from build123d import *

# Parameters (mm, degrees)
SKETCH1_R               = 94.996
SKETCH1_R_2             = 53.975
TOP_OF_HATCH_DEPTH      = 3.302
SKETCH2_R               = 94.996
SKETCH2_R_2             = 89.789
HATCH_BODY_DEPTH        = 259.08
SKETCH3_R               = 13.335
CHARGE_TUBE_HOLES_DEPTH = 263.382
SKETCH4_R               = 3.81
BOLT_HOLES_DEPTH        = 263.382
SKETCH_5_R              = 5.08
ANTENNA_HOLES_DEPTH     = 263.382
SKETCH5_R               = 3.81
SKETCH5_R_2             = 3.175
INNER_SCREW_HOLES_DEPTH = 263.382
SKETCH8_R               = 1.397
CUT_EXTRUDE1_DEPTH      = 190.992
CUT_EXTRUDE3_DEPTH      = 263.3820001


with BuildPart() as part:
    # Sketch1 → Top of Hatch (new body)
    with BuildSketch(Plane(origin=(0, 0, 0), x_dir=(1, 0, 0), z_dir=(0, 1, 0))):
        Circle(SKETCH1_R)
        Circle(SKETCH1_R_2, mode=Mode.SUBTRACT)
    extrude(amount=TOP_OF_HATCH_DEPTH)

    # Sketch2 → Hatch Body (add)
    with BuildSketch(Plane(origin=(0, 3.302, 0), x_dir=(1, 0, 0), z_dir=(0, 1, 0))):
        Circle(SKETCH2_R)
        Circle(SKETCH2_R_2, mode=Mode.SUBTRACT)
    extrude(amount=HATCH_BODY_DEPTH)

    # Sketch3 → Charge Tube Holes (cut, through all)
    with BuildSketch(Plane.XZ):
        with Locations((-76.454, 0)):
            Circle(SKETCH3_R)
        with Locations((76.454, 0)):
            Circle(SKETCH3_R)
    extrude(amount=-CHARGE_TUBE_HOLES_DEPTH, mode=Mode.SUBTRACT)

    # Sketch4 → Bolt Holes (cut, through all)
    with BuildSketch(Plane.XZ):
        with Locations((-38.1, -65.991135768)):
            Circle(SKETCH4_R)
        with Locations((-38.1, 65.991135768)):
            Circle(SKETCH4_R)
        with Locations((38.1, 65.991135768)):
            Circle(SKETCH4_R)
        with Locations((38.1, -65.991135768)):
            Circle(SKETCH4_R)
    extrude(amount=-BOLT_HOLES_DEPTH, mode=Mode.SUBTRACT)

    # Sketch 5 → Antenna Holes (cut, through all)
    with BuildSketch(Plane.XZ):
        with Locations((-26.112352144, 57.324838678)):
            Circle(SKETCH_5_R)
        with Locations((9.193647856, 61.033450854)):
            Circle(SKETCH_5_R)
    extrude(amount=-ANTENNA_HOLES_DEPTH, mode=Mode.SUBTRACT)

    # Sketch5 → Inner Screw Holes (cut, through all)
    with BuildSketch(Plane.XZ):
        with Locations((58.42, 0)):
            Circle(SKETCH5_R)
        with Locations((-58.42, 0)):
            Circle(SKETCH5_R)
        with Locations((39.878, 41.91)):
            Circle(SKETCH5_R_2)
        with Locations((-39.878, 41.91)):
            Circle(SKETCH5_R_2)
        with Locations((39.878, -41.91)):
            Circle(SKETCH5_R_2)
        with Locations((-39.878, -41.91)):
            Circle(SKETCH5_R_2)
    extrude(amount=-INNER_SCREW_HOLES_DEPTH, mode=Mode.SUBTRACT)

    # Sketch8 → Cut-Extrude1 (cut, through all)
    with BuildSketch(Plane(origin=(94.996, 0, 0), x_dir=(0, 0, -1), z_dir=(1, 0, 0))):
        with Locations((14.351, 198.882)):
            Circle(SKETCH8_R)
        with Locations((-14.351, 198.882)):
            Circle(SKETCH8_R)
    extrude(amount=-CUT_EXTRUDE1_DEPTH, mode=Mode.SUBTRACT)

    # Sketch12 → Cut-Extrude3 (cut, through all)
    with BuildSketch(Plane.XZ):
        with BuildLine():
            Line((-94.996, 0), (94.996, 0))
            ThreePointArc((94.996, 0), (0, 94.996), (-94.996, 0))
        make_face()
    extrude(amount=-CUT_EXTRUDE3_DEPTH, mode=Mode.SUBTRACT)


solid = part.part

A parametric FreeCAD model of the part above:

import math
import FreeCAD as App
import Part
import Sketcher
from FreeCAD import Vector
Q = App.Units.Quantity

doc = App.newDocument("Part")
params = doc.addObject("Spreadsheet::Sheet", "Params")
for row, (alias, value) in enumerate([
    ("sketch1_diameter", "7.48 in"),
    ("sketch1_diameter2", "4.25 in"),
    ("pad1_length", "0.13 in"),
    ("sketch2_diameter", "7.48 in"),
    ("sketch2_diameter2", "7.07 in"),
    ("pad2_length", "10.2 in"),
    ("sketch3_diameter", "1.05 in"),
    ("sketch4_diameter", "0.3 in"),
    ("sketch5_diameter", "0.4 in"),
    ("sketch6_diameter", "0.3 in"),
    ("sketch6_diameter2", "0.25 in"),
    ("sketch7_diameter", "0.11 in"),
    ("sketch8_radius", "3.74 in"),
], start=1):
    params.set(f"A{row}", alias)
    params.set(f"B{row}", "=" + value)
    params.setAlias(f"B{row}", alias)

body = doc.addObject("PartDesign::Body", "Body")

# Sketch on XZ plane
sketch1 = body.newObject("Sketcher::SketchObject", "Sketch")
sketch1.AttachmentSupport = (doc.getObject("XZ_Plane"), [""])
sketch1.MapMode = "FlatFace"
sketch1.addGeometry(Part.Circle(Vector(0, 0, 0), Vector(0, 0, 1), 95), False)
sketch1.addGeometry(Part.Circle(Vector(0, 0, 0), Vector(0, 0, 1), 54), False)
sketch1.addConstraint(Sketcher.Constraint("Coincident", 0, 3, -1, 1))
sketch1.addConstraint(Sketcher.Constraint("Coincident", 1, 3, -1, 1))
sketch1.addConstraint(Sketcher.Constraint("Diameter", 0, Q("7.48 in")))
sketch1.addConstraint(Sketcher.Constraint("Diameter", 1, Q("4.25 in")))
sketch1.setExpression("Constraints[2]", "Params.sketch1_diameter")
sketch1.setExpression("Constraints[3]", "Params.sketch1_diameter2")
pad1 = body.newObject("PartDesign::Pad", "Pad")
pad1.Profile = sketch1
pad1.setExpression("Length", "Params.pad1_length")
pad1.Reversed = True

# Sketch on XZ plane
sketch2 = body.newObject("Sketcher::SketchObject", "Sketch001")
sketch2.AttachmentSupport = (doc.getObject("XZ_Plane"), [""])
sketch2.MapMode = "FlatFace"
sketch2.AttachmentOffset = App.Placement(Vector(0, 0, -0.13 * 25.4), App.Rotation())
sketch2.addGeometry(Part.Circle(Vector(0, 0, 0), Vector(0, 0, 1), 95), False)
sketch2.addGeometry(Part.Circle(Vector(0, 0, 0), Vector(0, 0, 1), 90), False)
sketch2.addConstraint(Sketcher.Constraint("Coincident", 0, 3, -1, 1))
sketch2.addConstraint(Sketcher.Constraint("Coincident", 1, 3, -1, 1))
sketch2.addConstraint(Sketcher.Constraint("Diameter", 0, Q("7.48 in")))
sketch2.addConstraint(Sketcher.Constraint("Diameter", 1, Q("7.07 in")))
sketch2.setExpression("Constraints[2]", "Params.sketch2_diameter")
sketch2.setExpression("Constraints[3]", "Params.sketch2_diameter2")
pad2 = body.newObject("PartDesign::Pad", "Pad001")
pad2.Profile = sketch2
pad2.setExpression("Length", "Params.pad2_length")
pad2.Reversed = True

# Sketch on XZ plane
sketch3 = body.newObject("Sketcher::SketchObject", "Sketch002")
sketch3.AttachmentSupport = (doc.getObject("XZ_Plane"), [""])
sketch3.MapMode = "FlatFace"
sketch3.addGeometry(Part.Circle(Vector(-76, 0, 0), Vector(0, 0, 1), 13), False)
sketch3.addGeometry(Part.Circle(Vector(76, 0, 0), Vector(0, 0, 1), 13), False)
sketch3.addConstraint(Sketcher.Constraint("Equal", 0, 1))
sketch3.addConstraint(Sketcher.Constraint("Symmetric", 0, 3, 1, 3, -1, 1))
sketch3.addConstraint(Sketcher.Constraint("PointOnObject", 0, 3, -1))
sketch3.addConstraint(Sketcher.Constraint("Diameter", 0, Q("1.05 in")))
sketch3.addConstraint(Sketcher.Constraint("DistanceX", 0, 3, -1, 1, Q("3.01 in")))
sketch3.setExpression("Constraints[3]", "Params.sketch3_diameter")
pocket1 = body.newObject("PartDesign::Pocket", "Pocket")
pocket1.Profile = sketch3
pocket1.Type = "ThroughAll"

# Sketch on XZ plane
sketch4 = body.newObject("Sketcher::SketchObject", "Sketch003")
sketch4.AttachmentSupport = (doc.getObject("XZ_Plane"), [""])
sketch4.MapMode = "FlatFace"
sketch4.addGeometry(Part.Circle(Vector(-38.1, -66, 0), Vector(0, 0, 1), 3.8), False)
sketch4.addGeometry(Part.Circle(Vector(-38.1, 66, 0), Vector(0, 0, 1), 3.8), False)
sketch4.addGeometry(Part.Circle(Vector(38.1, 66, 0), Vector(0, 0, 1), 3.8), False)
sketch4.addGeometry(Part.Circle(Vector(38.1, -66, 0), Vector(0, 0, 1), 3.8), False)
sketch4.addConstraint(Sketcher.Constraint("Equal", 0, 1))
sketch4.addConstraint(Sketcher.Constraint("Equal", 1, 2))
sketch4.addConstraint(Sketcher.Constraint("Equal", 2, 3))
sketch4.addConstraint(Sketcher.Constraint("Symmetric", 0, 3, 2, 3, -1, 1))
sketch4.addConstraint(Sketcher.Constraint("Symmetric", 1, 3, 3, 3, -1, 1))
sketch4.addConstraint(Sketcher.Constraint("Symmetric", 1, 3, 2, 3, -2))
sketch4.addConstraint(Sketcher.Constraint("Diameter", 0, Q("0.3 in")))
sketch4.addConstraint(Sketcher.Constraint("DistanceX", 1, 3, 2, 3, Q("3 in")))
sketch4.addConstraint(Sketcher.Constraint("DistanceY", 0, 3, 1, 3, 131.982272))
sketch4.setExpression("Constraints[6]", "Params.sketch4_diameter")
pocket2 = body.newObject("PartDesign::Pocket", "Pocket001")
pocket2.Profile = sketch4
pocket2.Type = "ThroughAll"

# Sketch on XZ plane
sketch5 = body.newObject("Sketcher::SketchObject", "Sketch004")
sketch5.AttachmentSupport = (doc.getObject("XZ_Plane"), [""])
sketch5.MapMode = "FlatFace"
sketch5.addGeometry(Part.Circle(Vector(-26, 57, 0), Vector(0, 0, 1), 5), False)
sketch5.addGeometry(Part.Circle(Vector(9, 61, 0), Vector(0, 0, 1), 5), False)
sketch5.addConstraint(Sketcher.Constraint("Equal", 0, 1))
sketch5.addConstraint(Sketcher.Constraint("Diameter", 0, Q("0.4 in")))
sketch5.addConstraint(Sketcher.Constraint("DistanceX", 0, 3, 1, 3, Q("1.39 in")))
sketch5.addConstraint(Sketcher.Constraint("DistanceY", -1, 1, 0, 3, 57.324839))
sketch5.addConstraint(Sketcher.Constraint("DistanceY", -1, 1, 1, 3, 61.033451))
sketch5.addConstraint(Sketcher.Constraint("DistanceX", 0, 3, -1, 1, 26.112352))
sketch5.setExpression("Constraints[1]", "Params.sketch5_diameter")
pocket3 = body.newObject("PartDesign::Pocket", "Pocket002")
pocket3.Profile = sketch5
pocket3.Type = "ThroughAll"

# Sketch on XZ plane
sketch6 = body.newObject("Sketcher::SketchObject", "Sketch005")
sketch6.AttachmentSupport = (doc.getObject("XZ_Plane"), [""])
sketch6.MapMode = "FlatFace"
sketch6.addGeometry(Part.Circle(Vector(58.4, 0, 0), Vector(0, 0, 1), 3.8), False)
sketch6.addGeometry(Part.Circle(Vector(-58.4, 0, 0), Vector(0, 0, 1), 3.8), False)
sketch6.addGeometry(Part.Circle(Vector(39.9, 41.9, 0), Vector(0, 0, 1), 3.2), False)
sketch6.addGeometry(Part.Circle(Vector(-39.9, 41.9, 0), Vector(0, 0, 1), 3.2), False)
sketch6.addGeometry(Part.Circle(Vector(39.9, -41.9, 0), Vector(0, 0, 1), 3.2), False)
sketch6.addGeometry(Part.Circle(Vector(-39.9, -41.9, 0), Vector(0, 0, 1), 3.2), False)
sketch6.addConstraint(Sketcher.Constraint("Equal", 0, 1))
sketch6.addConstraint(Sketcher.Constraint("Equal", 2, 3))
sketch6.addConstraint(Sketcher.Constraint("Equal", 3, 4))
sketch6.addConstraint(Sketcher.Constraint("Equal", 4, 5))
sketch6.addConstraint(Sketcher.Constraint("Symmetric", 0, 3, 1, 3, -1, 1))
sketch6.addConstraint(Sketcher.Constraint("Symmetric", 3, 3, 4, 3, -1, 1))
sketch6.addConstraint(Sketcher.Constraint("Symmetric", 2, 3, 5, 3, -1, 1))
sketch6.addConstraint(Sketcher.Constraint("Symmetric", 2, 3, 3, 3, -2))
sketch6.addConstraint(Sketcher.Constraint("PointOnObject", 0, 3, -1))
sketch6.addConstraint(Sketcher.Constraint("Diameter", 0, Q("0.3 in")))
sketch6.addConstraint(Sketcher.Constraint("Diameter", 2, Q("0.25 in")))
sketch6.addConstraint(Sketcher.Constraint("DistanceX", -1, 1, 0, 3, Q("2.3 in")))
sketch6.addConstraint(Sketcher.Constraint("DistanceY", 4, 3, 2, 3, Q("3.3 in")))
sketch6.addConstraint(Sketcher.Constraint("DistanceX", -1, 1, 2, 3, Q("1.57 in")))
sketch6.setExpression("Constraints[9]", "Params.sketch6_diameter")
sketch6.setExpression("Constraints[10]", "Params.sketch6_diameter2")
pocket4 = body.newObject("PartDesign::Pocket", "Pocket003")
pocket4.Profile = sketch6
pocket4.Type = "ThroughAll"

# Sketch on YZ plane
sketch7 = body.newObject("Sketcher::SketchObject", "Sketch006")
sketch7.AttachmentSupport = (doc.getObject("YZ_Plane"), [""])
sketch7.MapMode = "FlatFace"
sketch7.AttachmentOffset = App.Placement(Vector(0, 0, 3.74 * 25.4), App.Rotation())
sketch7.addGeometry(Part.Circle(Vector(198.9, -14.4, 0), Vector(0, 0, 1), 1.4), False)
sketch7.addGeometry(Part.Circle(Vector(198.9, 14.4, 0), Vector(0, 0, 1), 1.4), False)
sketch7.addConstraint(Sketcher.Constraint("Equal", 0, 1))
sketch7.addConstraint(Sketcher.Constraint("Symmetric", 0, 3, 1, 3, -1))
sketch7.addConstraint(Sketcher.Constraint("Diameter", 0, Q("0.11 in")))
sketch7.addConstraint(Sketcher.Constraint("DistanceX", -1, 1, 0, 3, Q("7.83 in")))
sketch7.addConstraint(Sketcher.Constraint("DistanceY", 0, 3, 1, 3, Q("1.13 in")))
sketch7.setExpression("Constraints[2]", "Params.sketch7_diameter")
pocket5 = body.newObject("PartDesign::Pocket", "Pocket004")
pocket5.Profile = sketch7
pocket5.Type = "ThroughAll"

# Sketch on XZ plane
sketch8 = body.newObject("Sketcher::SketchObject", "Sketch007")
sketch8.AttachmentSupport = (doc.getObject("XZ_Plane"), [""])
sketch8.MapMode = "FlatFace"
sketch8.addGeometry(Part.LineSegment(Vector(-95, 0, 0), Vector(95, 0, 0)), False)
sketch8.addGeometry(Part.ArcOfCircle(Part.Circle(Vector(0, 0, 0), Vector(0, 0, 1), 95), math.radians(0), math.radians(180)), False)
sketch8.addConstraint(Sketcher.Constraint("Coincident", 0, 1, 1, 2))
sketch8.addConstraint(Sketcher.Constraint("Coincident", 1, 1, 0, 2))
sketch8.addConstraint(Sketcher.Constraint("Horizontal", 0))
sketch8.addConstraint(Sketcher.Constraint("Coincident", 1, 3, -1, 1))
sketch8.addConstraint(Sketcher.Constraint("PointOnObject", 0, 1, -1))
sketch8.addConstraint(Sketcher.Constraint("Radius", 1, Q("3.74 in")))
sketch8.setExpression("Constraints[5]", "Params.sketch8_radius")
pocket6 = body.newObject("PartDesign::Pocket", "Pocket005")
pocket6.Profile = sketch8
pocket6.Type = "ThroughAll"

doc.recompute()
